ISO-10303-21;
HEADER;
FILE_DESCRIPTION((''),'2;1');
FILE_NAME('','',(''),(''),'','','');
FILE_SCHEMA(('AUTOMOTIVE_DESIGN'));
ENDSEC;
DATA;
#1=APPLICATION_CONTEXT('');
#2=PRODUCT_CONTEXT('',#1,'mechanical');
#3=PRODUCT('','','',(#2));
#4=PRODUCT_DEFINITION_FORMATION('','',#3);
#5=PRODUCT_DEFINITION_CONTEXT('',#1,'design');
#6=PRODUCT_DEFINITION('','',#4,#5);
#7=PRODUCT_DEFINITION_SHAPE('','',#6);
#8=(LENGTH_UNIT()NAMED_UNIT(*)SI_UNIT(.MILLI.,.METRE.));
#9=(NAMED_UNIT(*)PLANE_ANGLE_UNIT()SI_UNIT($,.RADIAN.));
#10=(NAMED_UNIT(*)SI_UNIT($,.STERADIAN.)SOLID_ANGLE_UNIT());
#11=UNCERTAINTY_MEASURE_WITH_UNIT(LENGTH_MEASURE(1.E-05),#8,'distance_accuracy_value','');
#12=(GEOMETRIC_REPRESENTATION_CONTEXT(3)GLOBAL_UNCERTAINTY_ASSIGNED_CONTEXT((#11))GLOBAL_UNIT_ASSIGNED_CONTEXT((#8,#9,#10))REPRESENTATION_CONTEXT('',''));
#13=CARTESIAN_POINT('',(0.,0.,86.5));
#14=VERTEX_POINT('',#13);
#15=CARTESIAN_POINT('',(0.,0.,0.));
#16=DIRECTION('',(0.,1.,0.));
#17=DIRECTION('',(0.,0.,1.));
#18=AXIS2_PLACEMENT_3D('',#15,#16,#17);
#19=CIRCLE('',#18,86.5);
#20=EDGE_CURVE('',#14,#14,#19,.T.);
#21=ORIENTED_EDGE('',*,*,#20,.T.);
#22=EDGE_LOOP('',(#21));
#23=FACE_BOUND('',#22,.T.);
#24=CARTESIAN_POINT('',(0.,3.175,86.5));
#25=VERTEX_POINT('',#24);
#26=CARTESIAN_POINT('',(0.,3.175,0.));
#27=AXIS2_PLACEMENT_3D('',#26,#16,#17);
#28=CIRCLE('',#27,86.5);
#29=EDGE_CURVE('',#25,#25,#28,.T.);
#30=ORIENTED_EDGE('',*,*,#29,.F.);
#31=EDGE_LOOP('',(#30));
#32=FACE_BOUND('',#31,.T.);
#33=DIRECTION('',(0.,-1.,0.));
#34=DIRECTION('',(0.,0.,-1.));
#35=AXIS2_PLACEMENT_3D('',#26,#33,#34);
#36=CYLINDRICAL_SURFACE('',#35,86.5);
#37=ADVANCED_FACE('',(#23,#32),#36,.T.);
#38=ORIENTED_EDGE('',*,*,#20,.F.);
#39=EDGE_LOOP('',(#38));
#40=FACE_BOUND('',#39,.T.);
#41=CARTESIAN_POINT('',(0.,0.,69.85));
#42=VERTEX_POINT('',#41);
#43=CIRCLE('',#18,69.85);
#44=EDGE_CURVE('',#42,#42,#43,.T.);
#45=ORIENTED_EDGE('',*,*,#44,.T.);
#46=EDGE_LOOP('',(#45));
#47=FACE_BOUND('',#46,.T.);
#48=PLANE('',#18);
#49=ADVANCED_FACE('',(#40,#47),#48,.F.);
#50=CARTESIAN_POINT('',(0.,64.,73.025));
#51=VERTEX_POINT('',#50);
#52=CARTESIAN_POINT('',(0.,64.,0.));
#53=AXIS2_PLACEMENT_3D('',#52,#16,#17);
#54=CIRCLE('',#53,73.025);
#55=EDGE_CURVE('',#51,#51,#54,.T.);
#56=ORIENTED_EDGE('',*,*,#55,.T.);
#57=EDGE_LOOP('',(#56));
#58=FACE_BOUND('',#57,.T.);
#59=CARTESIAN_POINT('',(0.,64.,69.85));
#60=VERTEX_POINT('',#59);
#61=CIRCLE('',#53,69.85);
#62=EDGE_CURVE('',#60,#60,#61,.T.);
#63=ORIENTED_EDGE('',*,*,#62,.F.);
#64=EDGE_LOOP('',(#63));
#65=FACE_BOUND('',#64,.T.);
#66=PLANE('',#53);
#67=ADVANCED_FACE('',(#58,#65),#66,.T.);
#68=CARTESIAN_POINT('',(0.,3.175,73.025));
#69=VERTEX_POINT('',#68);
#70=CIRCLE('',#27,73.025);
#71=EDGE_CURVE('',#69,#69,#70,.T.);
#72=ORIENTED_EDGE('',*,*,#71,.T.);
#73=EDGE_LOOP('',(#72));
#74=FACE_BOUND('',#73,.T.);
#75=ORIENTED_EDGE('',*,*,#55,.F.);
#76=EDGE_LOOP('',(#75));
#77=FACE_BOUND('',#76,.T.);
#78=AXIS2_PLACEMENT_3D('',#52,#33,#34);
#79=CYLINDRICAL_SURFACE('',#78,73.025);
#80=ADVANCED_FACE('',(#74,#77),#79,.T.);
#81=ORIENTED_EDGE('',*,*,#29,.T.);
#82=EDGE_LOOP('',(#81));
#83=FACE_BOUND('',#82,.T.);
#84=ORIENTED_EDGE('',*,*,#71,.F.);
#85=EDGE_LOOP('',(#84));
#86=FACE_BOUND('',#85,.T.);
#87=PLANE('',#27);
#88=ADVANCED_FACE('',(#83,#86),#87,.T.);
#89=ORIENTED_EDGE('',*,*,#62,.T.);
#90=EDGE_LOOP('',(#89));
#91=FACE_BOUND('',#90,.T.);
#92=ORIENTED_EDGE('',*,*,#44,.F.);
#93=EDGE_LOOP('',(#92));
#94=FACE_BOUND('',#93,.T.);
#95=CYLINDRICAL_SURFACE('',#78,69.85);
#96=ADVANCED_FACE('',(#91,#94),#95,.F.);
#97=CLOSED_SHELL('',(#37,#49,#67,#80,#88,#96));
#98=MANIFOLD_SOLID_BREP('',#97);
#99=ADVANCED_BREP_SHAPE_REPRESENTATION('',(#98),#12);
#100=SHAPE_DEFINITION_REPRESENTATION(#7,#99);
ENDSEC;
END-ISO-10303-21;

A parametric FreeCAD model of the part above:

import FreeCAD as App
import Part
import Sketcher

V = App.Vector
Q = App.Units.Quantity

doc = App.newDocument("Part")
body = doc.addObject("PartDesign::Body", "Body")

sketch1 = doc.addObject("Sketcher::SketchObject", "Sketch")
body.addObject(sketch1)
sketch1.AttachmentSupport = (doc.XZ_Plane, [""])
sketch1.MapMode = "FlatFace"
sketch1.addGeometry([
    Part.Circle(V(0, 0, 0), V(0, 0, 1), 73.025),
    Part.Circle(V(0, 0, 0), V(0, 0, 1), 69.85),
], False)
sketch1.addConstraint([
    Sketcher.Constraint("Coincident", 0, 3, -1, 1),
    Sketcher.Constraint("Coincident", 1, 3, -1, 1),
    Sketcher.Constraint("Diameter", 1, Q("5.5 in")),
    Sketcher.Constraint("Diameter", 0, Q("5.75 in")),
])
pad1 = doc.addObject("PartDesign::Pad", "Pad")
body.addObject(pad1)
pad1.Profile = sketch1
pad1.Length = 64
pad1.Reversed = True

sketch2 = doc.addObject("Sketcher::SketchObject", "Sketch001")
body.addObject(sketch2)
sketch2.AttachmentSupport = (doc.XZ_Plane, [""])
sketch2.MapMode = "FlatFace"
sketch2.addGeometry([
    Part.Circle(V(0, 0, 0), V(0, 0, 1), 86.5),
    Part.Circle(V(0, 0, 0), V(0, 0, 1), 73.025),
], False)
sketch2.addConstraint([
    Sketcher.Constraint("Coincident", 0, 3, -1, 1),
    Sketcher.Constraint("Coincident", 1, 3, -1, 1),
    Sketcher.Constraint("Diameter", 1, Q("5.75 in")),
    Sketcher.Constraint("Diameter", 0, Q("173 mm")),
])
pad2 = doc.addObject("PartDesign::Pad", "Pad001")
body.addObject(pad2)
pad2.Profile = sketch2
pad2.Length = Q("0.125 in")
pad2.Reversed = True

doc.recompute()
